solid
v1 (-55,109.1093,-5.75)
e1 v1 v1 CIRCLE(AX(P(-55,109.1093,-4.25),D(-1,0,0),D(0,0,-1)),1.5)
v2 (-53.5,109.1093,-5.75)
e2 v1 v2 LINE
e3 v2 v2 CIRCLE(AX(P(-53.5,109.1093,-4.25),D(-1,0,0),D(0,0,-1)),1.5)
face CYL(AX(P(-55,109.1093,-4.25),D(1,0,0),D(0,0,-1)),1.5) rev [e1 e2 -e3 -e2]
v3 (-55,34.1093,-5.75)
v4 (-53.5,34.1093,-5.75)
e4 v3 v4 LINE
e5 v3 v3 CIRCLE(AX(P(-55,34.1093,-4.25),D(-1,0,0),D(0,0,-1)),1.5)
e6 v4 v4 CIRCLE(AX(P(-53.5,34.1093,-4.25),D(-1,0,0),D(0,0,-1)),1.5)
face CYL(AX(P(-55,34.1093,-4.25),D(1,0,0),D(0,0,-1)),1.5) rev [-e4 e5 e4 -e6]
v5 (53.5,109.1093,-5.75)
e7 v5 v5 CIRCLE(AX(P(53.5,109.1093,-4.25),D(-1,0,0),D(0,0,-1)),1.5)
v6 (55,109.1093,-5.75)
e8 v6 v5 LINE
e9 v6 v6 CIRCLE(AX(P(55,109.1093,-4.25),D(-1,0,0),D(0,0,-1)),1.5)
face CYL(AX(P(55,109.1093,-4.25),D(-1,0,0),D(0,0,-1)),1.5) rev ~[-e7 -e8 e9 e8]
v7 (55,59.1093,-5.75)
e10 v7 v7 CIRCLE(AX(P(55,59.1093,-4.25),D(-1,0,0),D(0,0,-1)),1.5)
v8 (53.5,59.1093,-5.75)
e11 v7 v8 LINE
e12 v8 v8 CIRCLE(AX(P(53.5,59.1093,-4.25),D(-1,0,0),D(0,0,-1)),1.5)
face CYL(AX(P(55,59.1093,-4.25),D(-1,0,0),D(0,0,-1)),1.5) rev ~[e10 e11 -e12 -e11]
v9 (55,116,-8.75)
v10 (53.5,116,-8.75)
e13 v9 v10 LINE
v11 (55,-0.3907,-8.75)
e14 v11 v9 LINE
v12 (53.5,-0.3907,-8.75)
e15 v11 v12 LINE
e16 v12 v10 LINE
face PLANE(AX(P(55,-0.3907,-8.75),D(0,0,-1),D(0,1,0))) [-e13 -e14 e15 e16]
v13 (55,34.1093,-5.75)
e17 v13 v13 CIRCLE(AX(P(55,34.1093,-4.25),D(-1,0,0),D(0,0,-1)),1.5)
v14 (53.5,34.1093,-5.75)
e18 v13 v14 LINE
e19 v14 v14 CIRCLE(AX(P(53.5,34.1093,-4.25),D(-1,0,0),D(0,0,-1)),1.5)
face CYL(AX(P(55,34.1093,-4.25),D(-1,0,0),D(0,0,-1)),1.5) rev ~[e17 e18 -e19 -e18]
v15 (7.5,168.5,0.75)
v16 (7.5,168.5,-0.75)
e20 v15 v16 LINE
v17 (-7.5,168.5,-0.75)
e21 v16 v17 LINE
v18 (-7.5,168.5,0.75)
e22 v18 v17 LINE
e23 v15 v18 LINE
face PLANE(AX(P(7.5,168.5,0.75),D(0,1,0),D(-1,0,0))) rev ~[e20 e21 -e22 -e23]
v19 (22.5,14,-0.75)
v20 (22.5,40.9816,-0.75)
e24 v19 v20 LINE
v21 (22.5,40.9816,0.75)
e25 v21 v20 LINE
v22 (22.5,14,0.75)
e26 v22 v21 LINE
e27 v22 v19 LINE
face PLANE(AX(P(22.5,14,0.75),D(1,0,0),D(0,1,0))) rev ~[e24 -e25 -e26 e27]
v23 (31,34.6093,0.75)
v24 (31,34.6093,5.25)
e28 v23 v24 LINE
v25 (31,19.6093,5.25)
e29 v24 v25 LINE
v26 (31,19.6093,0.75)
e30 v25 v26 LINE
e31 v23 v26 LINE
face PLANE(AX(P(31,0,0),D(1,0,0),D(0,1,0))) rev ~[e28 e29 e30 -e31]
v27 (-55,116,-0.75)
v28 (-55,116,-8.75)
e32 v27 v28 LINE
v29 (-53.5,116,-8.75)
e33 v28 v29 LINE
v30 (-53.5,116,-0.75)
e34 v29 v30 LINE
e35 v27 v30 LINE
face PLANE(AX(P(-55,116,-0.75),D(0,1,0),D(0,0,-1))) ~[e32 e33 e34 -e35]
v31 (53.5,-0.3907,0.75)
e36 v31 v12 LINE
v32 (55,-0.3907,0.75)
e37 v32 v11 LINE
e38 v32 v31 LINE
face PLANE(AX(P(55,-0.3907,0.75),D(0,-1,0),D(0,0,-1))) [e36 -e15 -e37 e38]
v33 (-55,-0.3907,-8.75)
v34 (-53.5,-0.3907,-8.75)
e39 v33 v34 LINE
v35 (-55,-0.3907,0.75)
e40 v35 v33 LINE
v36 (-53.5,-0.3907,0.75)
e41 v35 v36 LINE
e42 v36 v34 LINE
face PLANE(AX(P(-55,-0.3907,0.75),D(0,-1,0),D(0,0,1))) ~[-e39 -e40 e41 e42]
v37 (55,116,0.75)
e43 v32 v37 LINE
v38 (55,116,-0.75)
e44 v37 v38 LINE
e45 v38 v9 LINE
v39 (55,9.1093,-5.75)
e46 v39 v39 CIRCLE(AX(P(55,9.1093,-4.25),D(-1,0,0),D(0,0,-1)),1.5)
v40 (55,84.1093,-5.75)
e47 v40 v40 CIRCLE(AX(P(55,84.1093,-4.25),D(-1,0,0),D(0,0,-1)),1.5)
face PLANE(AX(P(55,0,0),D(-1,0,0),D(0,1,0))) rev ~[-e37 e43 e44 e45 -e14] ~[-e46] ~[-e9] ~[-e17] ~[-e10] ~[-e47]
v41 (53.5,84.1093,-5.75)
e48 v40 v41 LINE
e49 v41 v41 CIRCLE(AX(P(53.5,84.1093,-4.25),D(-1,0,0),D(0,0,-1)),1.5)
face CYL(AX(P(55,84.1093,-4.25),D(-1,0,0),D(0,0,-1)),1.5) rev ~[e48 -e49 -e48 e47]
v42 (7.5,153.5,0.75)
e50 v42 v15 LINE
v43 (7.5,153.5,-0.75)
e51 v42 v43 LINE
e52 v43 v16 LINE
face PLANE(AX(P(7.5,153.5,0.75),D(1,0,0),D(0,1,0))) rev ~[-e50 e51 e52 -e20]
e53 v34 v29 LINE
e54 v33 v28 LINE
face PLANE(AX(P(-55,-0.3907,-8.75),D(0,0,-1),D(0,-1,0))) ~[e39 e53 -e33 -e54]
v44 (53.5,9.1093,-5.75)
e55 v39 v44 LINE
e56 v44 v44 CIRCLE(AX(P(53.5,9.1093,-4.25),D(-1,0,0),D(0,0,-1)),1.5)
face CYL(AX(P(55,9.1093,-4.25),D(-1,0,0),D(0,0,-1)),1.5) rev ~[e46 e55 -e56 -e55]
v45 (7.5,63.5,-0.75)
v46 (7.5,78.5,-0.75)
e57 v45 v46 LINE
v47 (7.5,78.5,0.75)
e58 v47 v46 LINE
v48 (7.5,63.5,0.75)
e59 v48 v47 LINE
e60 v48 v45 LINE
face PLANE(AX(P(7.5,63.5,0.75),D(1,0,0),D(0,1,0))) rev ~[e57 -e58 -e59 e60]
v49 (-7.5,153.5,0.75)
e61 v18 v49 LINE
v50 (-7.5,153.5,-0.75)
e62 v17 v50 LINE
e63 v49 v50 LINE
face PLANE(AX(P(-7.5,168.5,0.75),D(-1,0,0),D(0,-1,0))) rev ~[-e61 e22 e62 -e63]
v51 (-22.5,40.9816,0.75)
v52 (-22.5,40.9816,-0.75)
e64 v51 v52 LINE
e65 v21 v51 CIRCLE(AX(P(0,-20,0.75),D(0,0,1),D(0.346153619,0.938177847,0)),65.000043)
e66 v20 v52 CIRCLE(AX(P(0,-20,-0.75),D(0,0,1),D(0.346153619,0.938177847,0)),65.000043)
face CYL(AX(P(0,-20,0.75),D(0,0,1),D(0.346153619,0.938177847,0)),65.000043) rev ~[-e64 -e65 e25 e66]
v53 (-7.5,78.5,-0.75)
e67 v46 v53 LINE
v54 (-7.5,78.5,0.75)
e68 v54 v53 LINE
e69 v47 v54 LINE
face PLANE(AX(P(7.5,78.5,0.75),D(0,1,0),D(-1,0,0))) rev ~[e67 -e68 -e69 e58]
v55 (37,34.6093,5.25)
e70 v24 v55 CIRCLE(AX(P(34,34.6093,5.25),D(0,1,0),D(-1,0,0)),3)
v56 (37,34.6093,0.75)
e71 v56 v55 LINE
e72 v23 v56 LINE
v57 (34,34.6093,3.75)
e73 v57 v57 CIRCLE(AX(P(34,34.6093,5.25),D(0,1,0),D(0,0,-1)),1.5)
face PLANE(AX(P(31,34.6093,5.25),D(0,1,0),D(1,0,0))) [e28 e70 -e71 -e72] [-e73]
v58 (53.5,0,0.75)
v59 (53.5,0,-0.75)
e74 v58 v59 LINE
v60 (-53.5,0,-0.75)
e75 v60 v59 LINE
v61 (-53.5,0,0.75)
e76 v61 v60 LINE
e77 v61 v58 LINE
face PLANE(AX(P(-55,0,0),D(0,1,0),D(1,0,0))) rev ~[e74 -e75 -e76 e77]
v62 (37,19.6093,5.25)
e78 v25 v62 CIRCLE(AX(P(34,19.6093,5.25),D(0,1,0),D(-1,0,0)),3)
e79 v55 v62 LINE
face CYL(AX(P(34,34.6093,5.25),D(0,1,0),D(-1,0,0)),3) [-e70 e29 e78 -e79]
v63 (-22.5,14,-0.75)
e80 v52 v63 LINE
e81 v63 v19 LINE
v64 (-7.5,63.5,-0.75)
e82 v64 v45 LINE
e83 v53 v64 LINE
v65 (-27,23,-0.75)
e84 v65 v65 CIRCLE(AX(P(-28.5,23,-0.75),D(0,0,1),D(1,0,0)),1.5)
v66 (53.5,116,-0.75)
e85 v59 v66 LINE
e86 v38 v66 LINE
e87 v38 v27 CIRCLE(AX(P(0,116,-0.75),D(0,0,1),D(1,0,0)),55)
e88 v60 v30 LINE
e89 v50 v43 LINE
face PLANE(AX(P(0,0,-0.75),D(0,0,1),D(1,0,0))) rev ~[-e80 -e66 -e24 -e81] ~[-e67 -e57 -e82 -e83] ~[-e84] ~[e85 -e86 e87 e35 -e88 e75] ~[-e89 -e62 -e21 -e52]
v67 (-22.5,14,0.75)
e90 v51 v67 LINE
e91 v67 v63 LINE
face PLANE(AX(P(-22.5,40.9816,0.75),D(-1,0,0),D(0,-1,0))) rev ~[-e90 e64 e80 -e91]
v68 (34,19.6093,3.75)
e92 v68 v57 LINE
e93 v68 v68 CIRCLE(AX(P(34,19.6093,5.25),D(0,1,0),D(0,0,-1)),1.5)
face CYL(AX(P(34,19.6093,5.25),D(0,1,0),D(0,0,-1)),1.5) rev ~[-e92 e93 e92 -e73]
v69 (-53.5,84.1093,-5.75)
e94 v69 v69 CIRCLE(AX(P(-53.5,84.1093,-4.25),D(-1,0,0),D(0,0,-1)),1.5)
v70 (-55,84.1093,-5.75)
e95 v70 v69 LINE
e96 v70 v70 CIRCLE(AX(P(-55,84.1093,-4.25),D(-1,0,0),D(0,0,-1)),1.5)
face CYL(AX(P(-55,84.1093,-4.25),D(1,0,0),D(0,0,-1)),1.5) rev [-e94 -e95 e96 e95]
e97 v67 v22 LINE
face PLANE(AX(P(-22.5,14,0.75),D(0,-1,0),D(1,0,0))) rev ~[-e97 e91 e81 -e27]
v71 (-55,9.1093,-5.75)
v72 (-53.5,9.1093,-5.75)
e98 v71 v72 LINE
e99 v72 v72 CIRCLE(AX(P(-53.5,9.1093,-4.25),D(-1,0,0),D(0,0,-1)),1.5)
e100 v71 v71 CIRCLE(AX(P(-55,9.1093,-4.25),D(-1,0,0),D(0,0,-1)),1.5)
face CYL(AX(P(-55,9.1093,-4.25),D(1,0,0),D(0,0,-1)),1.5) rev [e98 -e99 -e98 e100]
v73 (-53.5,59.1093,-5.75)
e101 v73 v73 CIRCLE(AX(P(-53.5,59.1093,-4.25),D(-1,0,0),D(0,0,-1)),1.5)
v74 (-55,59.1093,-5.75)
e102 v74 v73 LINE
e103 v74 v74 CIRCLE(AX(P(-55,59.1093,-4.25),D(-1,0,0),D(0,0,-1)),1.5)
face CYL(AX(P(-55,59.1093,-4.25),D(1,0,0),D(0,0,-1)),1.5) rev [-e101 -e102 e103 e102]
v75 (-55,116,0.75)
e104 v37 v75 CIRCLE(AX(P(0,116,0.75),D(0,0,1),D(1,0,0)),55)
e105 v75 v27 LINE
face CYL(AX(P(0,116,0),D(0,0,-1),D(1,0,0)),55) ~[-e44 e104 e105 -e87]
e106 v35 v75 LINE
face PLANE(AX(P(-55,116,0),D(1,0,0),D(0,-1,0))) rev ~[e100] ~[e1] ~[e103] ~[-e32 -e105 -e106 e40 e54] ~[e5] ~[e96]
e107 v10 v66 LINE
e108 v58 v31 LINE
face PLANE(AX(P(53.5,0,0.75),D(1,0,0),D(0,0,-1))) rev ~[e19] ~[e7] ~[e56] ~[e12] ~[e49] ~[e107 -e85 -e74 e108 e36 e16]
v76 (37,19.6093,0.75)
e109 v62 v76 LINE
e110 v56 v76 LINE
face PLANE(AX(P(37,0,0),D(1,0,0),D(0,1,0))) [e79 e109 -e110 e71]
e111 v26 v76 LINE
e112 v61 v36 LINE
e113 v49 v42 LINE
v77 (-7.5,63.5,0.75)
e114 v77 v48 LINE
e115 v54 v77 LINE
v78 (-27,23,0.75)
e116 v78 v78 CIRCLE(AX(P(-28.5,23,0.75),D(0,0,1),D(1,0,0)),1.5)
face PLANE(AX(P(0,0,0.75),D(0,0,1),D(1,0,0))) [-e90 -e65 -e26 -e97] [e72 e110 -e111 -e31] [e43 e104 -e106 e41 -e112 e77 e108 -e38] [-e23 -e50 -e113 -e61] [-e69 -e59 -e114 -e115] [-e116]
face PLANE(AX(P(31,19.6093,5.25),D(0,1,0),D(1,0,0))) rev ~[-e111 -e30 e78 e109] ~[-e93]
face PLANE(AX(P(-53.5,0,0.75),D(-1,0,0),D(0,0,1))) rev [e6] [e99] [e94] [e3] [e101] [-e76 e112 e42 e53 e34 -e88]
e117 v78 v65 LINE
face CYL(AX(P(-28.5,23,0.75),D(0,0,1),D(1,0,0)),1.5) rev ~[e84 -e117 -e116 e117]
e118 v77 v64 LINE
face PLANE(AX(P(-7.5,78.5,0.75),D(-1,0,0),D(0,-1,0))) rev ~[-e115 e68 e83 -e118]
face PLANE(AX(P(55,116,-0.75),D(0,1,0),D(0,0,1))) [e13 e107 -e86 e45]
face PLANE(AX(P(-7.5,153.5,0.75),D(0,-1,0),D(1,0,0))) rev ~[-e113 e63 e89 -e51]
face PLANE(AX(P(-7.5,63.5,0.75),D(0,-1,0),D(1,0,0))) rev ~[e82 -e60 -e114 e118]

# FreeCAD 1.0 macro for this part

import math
import FreeCAD as App
import Part
import Sketcher
from FreeCAD import Vector
Q = App.Units.Quantity

doc = App.newDocument("Part")
body = doc.addObject("PartDesign::Body", "Body")

sketch1 = body.newObject("Sketcher::SketchObject", "Sketch")
sketch1.AttachmentSupport = (doc.getObject("XY_Plane"), [""])
sketch1.MapMode = "FlatFace"
sketch1.addGeometry([
    Part.LineSegment(Vector(-55, 116, 0), Vector(-55, 0, 0)),
    Part.LineSegment(Vector(-55, 0, 0), Vector(55, 0, 0)),
    Part.LineSegment(Vector(55, 0, 0), Vector(55, 116, 0)),
    Part.ArcOfCircle(Part.Circle(Vector(0, 116, 0), Vector(0, 0, 1), 55), math.radians(0), math.radians(180)),
], False)
sketch1.addConstraint([
    Sketcher.Constraint("Coincident", 0, 2, 1, 1),
    Sketcher.Constraint("Coincident", 1, 2, 2, 1),
    Sketcher.Constraint("Tangent", 2, 2, 3, 1),
    Sketcher.Constraint("Tangent", 3, 2, 0, 1),
    Sketcher.Constraint("Vertical", 0),
    Sketcher.Constraint("Horizontal", 1),
    Sketcher.Constraint("Vertical", 2),
    Sketcher.Constraint("Symmetric", 0, 2, 1, 2, -1, 1),
    Sketcher.Constraint("Radius", 3, Q("55 mm")),
    Sketcher.Constraint("DistanceY", 0, 2, 0, 1, Q("116 mm")),
])
pad1 = body.newObject("PartDesign::Pad", "Pad")
pad1.Profile = sketch1
pad1.Length = 1.5
pad1.Midplane = True

sketch2 = body.newObject("Sketcher::SketchObject", "Sketch001")
sketch2.AttachmentSupport = (doc.getObject("XY_Plane"), [""])
sketch2.MapMode = "FlatFace"
sketch2.AttachmentOffset = App.Placement(Vector(0, 0, 0.75), App.Rotation())
sketch2.addGeometry([
    Part.LineSegment(Vector(-22, 41, 0), Vector(-22, 14, 0)),
    Part.LineSegment(Vector(-22, 14, 0), Vector(22, 14, 0)),
    Part.LineSegment(Vector(22, 14, 0), Vector(22, 41, 0)),
    Part.ArcOfCircle(Part.Circle(Vector(0, -20, 0), Vector(0, 0, 1), 65), math.radians(70), math.radians(110)),
], False)
sketch2.addConstraint([
    Sketcher.Constraint("Coincident", 0, 2, 1, 1),
    Sketcher.Constraint("Coincident", 1, 2, 2, 1),
    Sketcher.Constraint("Coincident", 2, 2, 3, 1),
    Sketcher.Constraint("Coincident", 3, 2, 0, 1),
    Sketcher.Constraint("Vertical", 0),
    Sketcher.Constraint("Horizontal", 1),
    Sketcher.Constraint("Vertical", 2),
    Sketcher.Constraint("Symmetric", 2, 2, 3, 2, -2),
    Sketcher.Constraint("Radius", 3, Q("65 mm")),
    Sketcher.Constraint("DistanceX", 1, 1, 1, 2, Q("45 mm")),
    Sketcher.Constraint("DistanceY", -1, 1, 0, 2, Q("14 mm")),
    Sketcher.Constraint("DistanceY", 3, 3, -1, 1, Q("20 mm")),
])
pocket1 = body.newObject("PartDesign::Pocket", "Pocket")
pocket1.Profile = sketch2
pocket1.Length = 1.5

sketch3 = body.newObject("Sketcher::SketchObject", "Sketch002")
sketch3.AttachmentSupport = (doc.getObject("XY_Plane"), [""])
sketch3.MapMode = "FlatFace"
sketch3.AttachmentOffset = App.Placement(Vector(0, 0, 0.75), App.Rotation())
sketch3.addGeometry([
    Part.LineSegment(Vector(-8, 78, 0), Vector(-8, 64, 0)),
    Part.LineSegment(Vector(-8, 64, 0), Vector(8, 64, 0)),
    Part.LineSegment(Vector(8, 64, 0), Vector(8, 78, 0)),
    Part.LineSegment(Vector(8, 78, 0), Vector(-8, 78, 0)),
    Part.LineSegment(Vector(-8, 168, 0), Vector(-8, 154, 0)),
    Part.LineSegment(Vector(-8, 154, 0), Vector(8, 154, 0)),
    Part.LineSegment(Vector(8, 154, 0), Vector(8, 168, 0)),
    Part.LineSegment(Vector(8, 168, 0), Vector(-8, 168, 0)),
], False)
sketch3.addConstraint([
    Sketcher.Constraint("Coincident", 0, 2, 1, 1),
    Sketcher.Constraint("Coincident", 1, 2, 2, 1),
    Sketcher.Constraint("Coincident", 2, 2, 3, 1),
    Sketcher.Constraint("Coincident", 3, 2, 0, 1),
    Sketcher.Constraint("Coincident", 4, 2, 5, 1),
    Sketcher.Constraint("Coincident", 5, 2, 6, 1),
    Sketcher.Constraint("Coincident", 6, 2, 7, 1),
    Sketcher.Constraint("Coincident", 7, 2, 4, 1),
    Sketcher.Constraint("Vertical", 0),
    Sketcher.Constraint("Horizontal", 1),
    Sketcher.Constraint("Vertical", 2),
    Sketcher.Constraint("Horizontal", 3),
    Sketcher.Constraint("Vertical", 4),
    Sketcher.Constraint("Horizontal", 5),
    Sketcher.Constraint("Vertical", 6),
    Sketcher.Constraint("Horizontal", 7),
    Sketcher.Constraint("Vertical", 3, 2, 4, 2),
    Sketcher.Constraint("Vertical", 2, 2, 5, 2),
    Sketcher.Constraint("Equal", 7, 0),
    Sketcher.Constraint("Equal", 2, 4),
    Sketcher.Constraint("DistanceX", 1, 1, 1, 2, Q("15 mm")),
    Sketcher.Constraint("DistanceY", 3, 2, 4, 2, Q("75 mm")),
    Sketcher.Constraint("DistanceX", 0, 2, -1, 1, Q("7.5 mm")),
    Sketcher.Constraint("DistanceY", -1, 1, 0, 2, Q("63.5 mm")),
])
pocket2 = body.newObject("PartDesign::Pocket", "Pocket001")
pocket2.Profile = sketch3
pocket2.Length = 1.5

sketch4 = body.newObject("Sketcher::SketchObject", "Sketch003")
sketch4.AttachmentSupport = (doc.getObject("YZ_Plane"), [""])
sketch4.MapMode = "FlatFace"
sketch4.AttachmentOffset = App.Placement(Vector(0, 0, 55), App.Rotation())
sketch4.addGeometry([
    Part.LineSegment(Vector(116, 1, 0), Vector(0, 1, 0)),
    Part.LineSegment(Vector(0, 1, 0), Vector(0, -9, 0)),
    Part.LineSegment(Vector(0, -9, 0), Vector(116, -9, 0)),
    Part.LineSegment(Vector(116, -9, 0), Vector(116, 1, 0)),
], False)
sketch4.addConstraint([
    Sketcher.Constraint("Coincident", 0, 2, 1, 1),
    Sketcher.Constraint("Coincident", 1, 2, 2, 1),
    Sketcher.Constraint("Coincident", 2, 2, 3, 1),
    Sketcher.Constraint("Coincident", 3, 2, 0, 1),
    Sketcher.Constraint("Horizontal", 0),
    Sketcher.Constraint("Vertical", 1),
    Sketcher.Constraint("Horizontal", 2),
    Sketcher.Constraint("Vertical", 3),
    Sketcher.Constraint("DistanceY", 1, 2, 1, 1, Q("9.5 mm")),
    Sketcher.Constraint("DistanceX", -1, 1, 2, 2, Q("116 mm")),
    Sketcher.Constraint("DistanceY", -1, 1, 0, 2, Q("0.75 mm")),
    Sketcher.Constraint("DistanceX", 0, 2, 0, 1, Q("116.3907 mm")),
])
pad2 = body.newObject("PartDesign::Pad", "Pad001")
pad2.Profile = sketch4
pad2.Length = 1.5
pad2.Reversed = True

sketch5 = body.newObject("Sketcher::SketchObject", "Sketch004")
sketch5.AttachmentSupport = (doc.getObject("YZ_Plane"), [""])
sketch5.MapMode = "FlatFace"
sketch5.AttachmentOffset = App.Placement(Vector(0, 0, 55), App.Rotation())
sketch5.addGeometry([
    Part.Circle(Vector(109.1, -4.2, 0), Vector(0, 0, 1), 1.5),
    Part.Circle(Vector(84.1, -4.2, 0), Vector(0, 0, 1), 1.5),
    Part.Circle(Vector(59.1, -4.2, 0), Vector(0, 0, 1), 1.5),
    Part.Circle(Vector(34.1, -4.2, 0), Vector(0, 0, 1), 1.5),
    Part.Circle(Vector(9.1, -4.2, 0), Vector(0, 0, 1), 1.5),
], False)
sketch5.addConstraint([
    Sketcher.Constraint("Equal", 0, 1),
    Sketcher.Constraint("Equal", 1, 2),
    Sketcher.Constraint("Equal", 2, 3),
    Sketcher.Constraint("Equal", 3, 4),
    Sketcher.Constraint("Horizontal", 0, 3, 1, 3),
    Sketcher.Constraint("Horizontal", 1, 3, 2, 3),
    Sketcher.Constraint("Horizontal", 2, 3, 3, 3),
    Sketcher.Constraint("Horizontal", 3, 3, 4, 3),
    Sketcher.Constraint("Diameter", 0, Q("3 mm")),
    Sketcher.Constraint("DistanceX", 1, 3, 0, 3, Q("25 mm")),
    Sketcher.Constraint("DistanceX", 2, 3, 1, 3, Q("25 mm")),
    Sketcher.Constraint("DistanceX", 3, 3, 2, 3, Q("25 mm")),
    Sketcher.Constraint("DistanceX", 4, 3, 3, 3, Q("25 mm")),
    Sketcher.Constraint("DistanceY", 0, 3, -1, 1, Q("4.25 mm")),
    Sketcher.Constraint("DistanceX", -1, 1, 0, 3, Q("109.1093 mm")),
])
doc.recompute()
hole = body.newObject("PartDesign::Hole", "Hole")
hole.Profile = sketch5
hole.ThreadType = "None"
hole.Diameter = 3
hole.DepthType = "Dimension"
hole.Depth = 1.5
hole.DrillPoint = "Flat"
doc.recompute()

mirrored = body.newObject("PartDesign::Mirrored", "Mirrored")
mirrored.Originals = [pad2, hole]
mirrored.MirrorPlane = (doc.getObject("YZ_Plane"), [""])
body.Tip = mirrored

sketch6 = body.newObject("Sketcher::SketchObject", "Sketch005")
sketch6.AttachmentSupport = (doc.getObject("YZ_Plane"), [""])
sketch6.MapMode = "FlatFace"
sketch6.AttachmentOffset = App.Placement(Vector(0, 0, 31), App.Rotation())
sketch6.addGeometry([
    Part.LineSegment(Vector(19.6, 0.8, 0), Vector(34.6, 0.8, 0)),
    Part.LineSegment(Vector(34.6, 0.8, 0), Vector(34.6, 5.2, 0)),
    Part.LineSegment(Vector(34.6, 5.2, 0), Vector(19.6, 5.2, 0)),
    Part.LineSegment(Vector(19.6, 5.2, 0), Vector(19.6, 0.8, 0)),
], False)
sketch6.addConstraint([
    Sketcher.Constraint("Coincident", 0, 2, 1, 1),
    Sketcher.Constraint("Coincident", 1, 2, 2, 1),
    Sketcher.Constraint("Coincident", 2, 2, 3, 1),
    Sketcher.Constraint("Coincident", 3, 2, 0, 1),
    Sketcher.Constraint("Horizontal", 0),
    Sketcher.Constraint("Vertical", 1),
    Sketcher.Constraint("Horizontal", 2),
    Sketcher.Constraint("Vertical", 3),
    Sketcher.Constraint("DistanceX", 0, 1, 0, 2, Q("15 mm")),
    Sketcher.Constraint("DistanceY", 1, 1, 1, 2, Q("4.5 mm")),
    Sketcher.Constraint("DistanceY", -1, 1, 0, 2, Q("0.75 mm")),
    Sketcher.Constraint("DistanceX", -1, 1, 0, 2, Q("34.6093 mm")),
])
pad3 = body.newObject("PartDesign::Pad", "Pad002")
pad3.Profile = sketch6
pad3.Length = 6

sketch7 = body.newObject("Sketcher::SketchObject", "Sketch006")
sketch7.AttachmentSupport = (doc.getObject("XZ_Plane"), [""])
sketch7.MapMode = "FlatFace"
sketch7.AttachmentOffset = App.Placement(Vector(0, 0, -34.6093), App.Rotation())
sketch7.addGeometry([
    Part.LineSegment(Vector(37, 5.2, 0), Vector(31, 5.2, 0)),
    Part.ArcOfCircle(Part.Circle(Vector(34, 5.2, 0), Vector(0, 0, 1), 3), math.radians(0), math.radians(180)),
], False)
sketch7.addConstraint([
    Sketcher.Constraint("Coincident", 0, 1, 1, 1),
    Sketcher.Constraint("Coincident", 1, 2, 0, 2),
    Sketcher.Constraint("Horizontal", 0),
    Sketcher.Constraint("Horizontal", 1, 3, 0, 1),
    Sketcher.Constraint("Radius", 1, Q("3 mm")),
    Sketcher.Constraint("DistanceX", -1, 1, 1, 3, Q("34 mm")),
    Sketcher.Constraint("DistanceY", -1, 1, 1, 3, Q("5.25 mm")),
])
pad4 = body.newObject("PartDesign::Pad", "Pad003")
pad4.Profile = sketch7
pad4.Length = 15

sketch8 = body.newObject("Sketcher::SketchObject", "Sketch007")
sketch8.AttachmentSupport = (doc.getObject("XZ_Plane"), [""])
sketch8.MapMode = "FlatFace"
sketch8.AttachmentOffset = App.Placement(Vector(0, 0, -19.6093), App.Rotation())
sketch8.addGeometry(Part.Circle(Vector(34, 5.2, 0), Vector(0, 0, 1), 1.5), False)
sketch8.addConstraint([
    Sketcher.Constraint("Diameter", 0, Q("3 mm")),
    Sketcher.Constraint("DistanceX", -1, 1, 0, 3, Q("34 mm")),
    Sketcher.Constraint("DistanceY", -1, 1, 0, 3, Q("5.25 mm")),
])
doc.recompute()
hole2 = body.newObject("PartDesign::Hole", "Hole001")
hole2.Profile = sketch8
hole2.ThreadType = "None"
hole2.Diameter = 3
hole2.DepthType = "Dimension"
hole2.Depth = 15
hole2.DrillPoint = "Flat"

sketch9 = body.newObject("Sketcher::SketchObject", "Sketch008")
sketch9.AttachmentSupport = (doc.getObject("XY_Plane"), [""])
sketch9.MapMode = "FlatFace"
sketch9.AttachmentOffset = App.Placement(Vector(0, 0, 0.75), App.Rotation())
sketch9.addGeometry(Part.Circle(Vector(-28.5, 23, 0), Vector(0, 0, 1), 1.5), False)
sketch9.addConstraint([
    Sketcher.Constraint("Diameter", 0, Q("3 mm")),
    Sketcher.Constraint("DistanceY", -1, 1, 0, 3, Q("23 mm")),
    Sketcher.Constraint("DistanceX", 0, 3, -1, 1, Q("28.5 mm")),
])
pocket3 = body.newObject("PartDesign::Pocket", "Pocket002")
pocket3.Profile = sketch9
pocket3.Length = 1.5

doc.recompute()
